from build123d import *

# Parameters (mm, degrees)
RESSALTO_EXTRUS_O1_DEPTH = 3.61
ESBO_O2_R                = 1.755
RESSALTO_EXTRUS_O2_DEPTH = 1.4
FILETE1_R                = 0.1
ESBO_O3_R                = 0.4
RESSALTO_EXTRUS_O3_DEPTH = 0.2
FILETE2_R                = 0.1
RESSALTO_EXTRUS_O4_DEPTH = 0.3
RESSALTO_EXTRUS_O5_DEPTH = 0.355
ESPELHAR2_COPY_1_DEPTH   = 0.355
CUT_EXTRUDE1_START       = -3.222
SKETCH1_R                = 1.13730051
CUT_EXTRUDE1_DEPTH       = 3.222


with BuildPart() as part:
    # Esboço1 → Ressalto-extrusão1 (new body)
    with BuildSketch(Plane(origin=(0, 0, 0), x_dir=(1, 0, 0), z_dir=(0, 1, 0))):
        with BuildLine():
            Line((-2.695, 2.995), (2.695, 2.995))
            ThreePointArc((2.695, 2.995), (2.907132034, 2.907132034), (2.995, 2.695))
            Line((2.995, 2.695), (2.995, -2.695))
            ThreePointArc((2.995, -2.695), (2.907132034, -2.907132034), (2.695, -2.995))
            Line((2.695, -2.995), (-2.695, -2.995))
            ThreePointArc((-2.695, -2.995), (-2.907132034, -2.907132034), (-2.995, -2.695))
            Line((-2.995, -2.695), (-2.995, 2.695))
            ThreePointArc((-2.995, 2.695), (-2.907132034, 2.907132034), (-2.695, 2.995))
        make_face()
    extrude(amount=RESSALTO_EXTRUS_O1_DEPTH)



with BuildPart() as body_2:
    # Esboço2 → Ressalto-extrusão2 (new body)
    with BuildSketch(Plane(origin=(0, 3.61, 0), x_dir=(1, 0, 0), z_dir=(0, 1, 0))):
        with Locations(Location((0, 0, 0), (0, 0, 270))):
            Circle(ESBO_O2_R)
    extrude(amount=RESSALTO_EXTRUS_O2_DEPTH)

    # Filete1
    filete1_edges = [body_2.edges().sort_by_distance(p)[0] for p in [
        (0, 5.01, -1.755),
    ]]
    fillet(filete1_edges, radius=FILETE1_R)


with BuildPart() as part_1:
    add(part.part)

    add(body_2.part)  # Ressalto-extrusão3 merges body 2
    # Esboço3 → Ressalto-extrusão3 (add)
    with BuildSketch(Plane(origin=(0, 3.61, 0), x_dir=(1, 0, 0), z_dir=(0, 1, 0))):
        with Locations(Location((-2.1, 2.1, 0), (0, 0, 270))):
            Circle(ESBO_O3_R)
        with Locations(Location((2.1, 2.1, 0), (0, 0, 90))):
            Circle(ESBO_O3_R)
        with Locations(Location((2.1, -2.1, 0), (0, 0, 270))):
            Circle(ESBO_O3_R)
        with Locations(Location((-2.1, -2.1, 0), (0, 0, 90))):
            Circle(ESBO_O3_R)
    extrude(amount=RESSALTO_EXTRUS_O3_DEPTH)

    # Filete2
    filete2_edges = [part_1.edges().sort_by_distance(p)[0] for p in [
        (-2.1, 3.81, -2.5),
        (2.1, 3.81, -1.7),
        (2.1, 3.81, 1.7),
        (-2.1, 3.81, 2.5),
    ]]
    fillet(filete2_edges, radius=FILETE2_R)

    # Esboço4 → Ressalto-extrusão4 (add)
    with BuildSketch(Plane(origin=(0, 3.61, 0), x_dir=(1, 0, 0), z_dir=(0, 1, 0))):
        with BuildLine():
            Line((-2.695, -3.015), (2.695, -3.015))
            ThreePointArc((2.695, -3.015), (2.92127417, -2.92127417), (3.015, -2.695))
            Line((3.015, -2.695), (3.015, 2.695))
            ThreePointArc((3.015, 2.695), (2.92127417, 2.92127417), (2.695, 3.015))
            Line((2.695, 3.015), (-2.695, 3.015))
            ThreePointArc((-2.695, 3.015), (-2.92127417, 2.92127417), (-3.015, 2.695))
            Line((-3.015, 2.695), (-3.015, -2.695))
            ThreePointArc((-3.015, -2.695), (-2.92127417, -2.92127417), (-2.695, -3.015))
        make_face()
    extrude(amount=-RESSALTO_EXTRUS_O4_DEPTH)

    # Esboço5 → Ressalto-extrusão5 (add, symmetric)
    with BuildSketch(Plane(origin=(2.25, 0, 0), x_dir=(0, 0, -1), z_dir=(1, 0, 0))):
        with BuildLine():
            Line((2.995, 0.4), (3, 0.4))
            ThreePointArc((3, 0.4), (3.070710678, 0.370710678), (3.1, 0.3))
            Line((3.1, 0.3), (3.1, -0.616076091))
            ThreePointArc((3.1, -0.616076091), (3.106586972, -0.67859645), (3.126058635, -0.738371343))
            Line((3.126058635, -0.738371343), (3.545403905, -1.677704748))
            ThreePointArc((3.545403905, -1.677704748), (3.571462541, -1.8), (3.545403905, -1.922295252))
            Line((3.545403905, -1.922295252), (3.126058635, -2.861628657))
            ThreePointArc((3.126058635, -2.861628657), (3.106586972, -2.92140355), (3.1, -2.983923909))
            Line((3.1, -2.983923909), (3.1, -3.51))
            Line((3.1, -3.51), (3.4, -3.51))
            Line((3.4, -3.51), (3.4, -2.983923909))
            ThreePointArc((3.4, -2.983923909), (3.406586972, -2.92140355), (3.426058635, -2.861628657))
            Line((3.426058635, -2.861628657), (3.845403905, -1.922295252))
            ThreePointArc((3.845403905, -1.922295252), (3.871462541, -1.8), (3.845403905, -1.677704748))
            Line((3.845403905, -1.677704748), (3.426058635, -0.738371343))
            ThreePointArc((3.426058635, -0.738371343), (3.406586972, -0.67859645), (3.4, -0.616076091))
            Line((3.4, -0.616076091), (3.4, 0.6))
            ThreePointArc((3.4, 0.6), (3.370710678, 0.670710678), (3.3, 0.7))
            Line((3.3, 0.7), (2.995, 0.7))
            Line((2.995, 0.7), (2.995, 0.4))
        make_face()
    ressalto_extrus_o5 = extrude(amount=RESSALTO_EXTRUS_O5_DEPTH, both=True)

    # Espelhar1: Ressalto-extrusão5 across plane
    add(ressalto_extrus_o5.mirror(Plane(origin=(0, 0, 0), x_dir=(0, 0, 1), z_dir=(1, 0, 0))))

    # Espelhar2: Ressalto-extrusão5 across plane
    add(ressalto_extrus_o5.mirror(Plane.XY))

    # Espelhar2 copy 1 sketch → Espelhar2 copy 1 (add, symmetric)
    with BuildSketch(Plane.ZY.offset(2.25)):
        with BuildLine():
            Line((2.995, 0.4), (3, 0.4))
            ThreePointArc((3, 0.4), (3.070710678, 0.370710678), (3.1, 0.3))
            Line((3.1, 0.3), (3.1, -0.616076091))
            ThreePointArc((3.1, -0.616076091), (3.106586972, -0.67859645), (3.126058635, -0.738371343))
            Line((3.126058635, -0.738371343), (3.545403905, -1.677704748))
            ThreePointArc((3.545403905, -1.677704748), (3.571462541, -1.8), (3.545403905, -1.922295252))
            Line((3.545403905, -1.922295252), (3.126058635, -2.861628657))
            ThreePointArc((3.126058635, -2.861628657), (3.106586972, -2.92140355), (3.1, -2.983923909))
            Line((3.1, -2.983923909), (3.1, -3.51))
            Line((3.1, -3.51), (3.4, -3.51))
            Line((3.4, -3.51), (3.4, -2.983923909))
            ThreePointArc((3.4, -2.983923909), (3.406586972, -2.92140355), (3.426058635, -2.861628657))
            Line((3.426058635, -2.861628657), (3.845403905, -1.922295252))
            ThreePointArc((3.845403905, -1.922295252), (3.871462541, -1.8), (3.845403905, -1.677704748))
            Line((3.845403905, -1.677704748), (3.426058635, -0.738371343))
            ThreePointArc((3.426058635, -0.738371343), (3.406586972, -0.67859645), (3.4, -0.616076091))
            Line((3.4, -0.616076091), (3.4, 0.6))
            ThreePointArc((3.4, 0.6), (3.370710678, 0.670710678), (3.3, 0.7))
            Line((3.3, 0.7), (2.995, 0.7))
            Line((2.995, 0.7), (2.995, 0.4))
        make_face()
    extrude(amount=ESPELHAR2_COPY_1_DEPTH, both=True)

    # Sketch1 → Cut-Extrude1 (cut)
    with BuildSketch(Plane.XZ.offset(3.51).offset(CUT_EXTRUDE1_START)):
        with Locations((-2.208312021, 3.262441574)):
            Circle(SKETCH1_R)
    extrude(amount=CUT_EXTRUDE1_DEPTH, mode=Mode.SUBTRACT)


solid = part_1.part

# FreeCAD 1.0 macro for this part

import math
import FreeCAD as App
import Part
import Sketcher
from FreeCAD import Vector
Q = App.Units.Quantity


def edges_at(feature, points):
    """Names of the edges that pass closest to the given points."""
    edges = feature.Shape.Edges
    near = lambda p: min(range(len(edges)), key=lambda i: edges[i].distToShape(Part.Vertex(*p))[0])
    return sorted({f"Edge{near(p) + 1}" for p in points})

doc = App.newDocument("Part")
body = doc.addObject("PartDesign::Body", "Body")

# Sketch on XZ plane
sketch1 = body.newObject("Sketcher::SketchObject", "Sketch")
sketch1.AttachmentSupport = (doc.getObject("XZ_Plane"), [""])
sketch1.MapMode = "FlatFace"
sketch1.addGeometry([
    Part.LineSegment(Vector(2.69, -3, 0), Vector(-2.69, -3, 0)),  # 0
    Part.ArcOfCircle(Part.Circle(Vector(-2.69, -2.69, 0), Vector(0, 0, 1), 0.3), math.radians(-180), math.radians(-90)),  # 1
    Part.LineSegment(Vector(-3, -2.69, 0), Vector(-3, 2.69, 0)),  # 2
    Part.ArcOfCircle(Part.Circle(Vector(-2.69, 2.69, 0), Vector(0, 0, 1), 0.3), math.radians(90), math.radians(180)),  # 3
    Part.LineSegment(Vector(-2.69, 3, 0), Vector(2.69, 3, 0)),  # 4
    Part.ArcOfCircle(Part.Circle(Vector(2.69, 2.69, 0), Vector(0, 0, 1), 0.3), math.radians(0), math.radians(90)),  # 5
    Part.LineSegment(Vector(3, 2.69, 0), Vector(3, -2.69, 0)),  # 6
    Part.ArcOfCircle(Part.Circle(Vector(2.69, -2.69, 0), Vector(0, 0, 1), 0.3), math.radians(-90), math.radians(0)),  # 7
], False)
sketch1.addConstraint([
    Sketcher.Constraint("Tangent", 0, 2, 1, 2),
    Sketcher.Constraint("Tangent", 1, 1, 2, 1),
    Sketcher.Constraint("Tangent", 2, 2, 3, 2),
    Sketcher.Constraint("Tangent", 3, 1, 4, 1),
    Sketcher.Constraint("Tangent", 4, 2, 5, 2),
    Sketcher.Constraint("Tangent", 5, 1, 6, 1),
    Sketcher.Constraint("Tangent", 6, 2, 7, 2),
    Sketcher.Constraint("Tangent", 7, 1, 0, 1),
    Sketcher.Constraint("Horizontal", 0),
    Sketcher.Constraint("Vertical", 2),
    Sketcher.Constraint("Horizontal", 4),
    Sketcher.Constraint("Vertical", 6),
    Sketcher.Constraint("Equal", 1, 3),
    Sketcher.Constraint("Equal", 3, 5),
    Sketcher.Constraint("Equal", 5, 7),
    Sketcher.Constraint("Symmetric", 1, 3, 5, 3, -1, 1),
    Sketcher.Constraint("Equal", 4, 2),
    Sketcher.Constraint("Radius", 1, Q("0.3 mm")),
    Sketcher.Constraint("DistanceX", 0, 2, 0, 1, Q("5.39 mm")),
])
pad1 = body.newObject("PartDesign::Pad", "Pad")
pad1.Profile = sketch1
pad1.Length = 3.61
pad1.Reversed = True
body2 = doc.addObject("PartDesign::Body", "Body001")

# Sketch on XZ plane
sketch2 = body2.newObject("Sketcher::SketchObject", "Sketch001")
sketch2.AttachmentSupport = (doc.getObject("XZ_Plane001"), [""])
sketch2.MapMode = "FlatFace"
sketch2.AttachmentOffset = App.Placement(Vector(0, 0, -3.61), App.Rotation())
sketch2.addGeometry(Part.Circle(Vector(0, 0, 0), Vector(0, 0, 1), 1.8), False)
sketch2.addConstraint([
    Sketcher.Constraint("Coincident", 0, 3, -1, 1),
    Sketcher.Constraint("Diameter", 0, Q("3.51 mm")),
])
pad2 = body2.newObject("PartDesign::Pad", "Pad001")
pad2.Profile = sketch2
pad2.Length = 1.4
pad2.Reversed = True
doc.recompute()

fillet = body2.newObject("PartDesign::Fillet", "Fillet")
fillet.Base = (pad2, edges_at(pad2, [(0, 5.01, -1.755)]))
fillet.Radius = 0.1
doc.recompute()

boolean = body.newObject("PartDesign::Boolean", "Boolean")
boolean.Type = "Fuse"
boolean.addObjects([body2])

# Sketch on XZ plane
sketch3 = body.newObject("Sketcher::SketchObject", "Sketch002")
sketch3.AttachmentSupport = (doc.getObject("XZ_Plane"), [""])
sketch3.MapMode = "FlatFace"
sketch3.AttachmentOffset = App.Placement(Vector(0, 0, -3.61), App.Rotation())
sketch3.addGeometry([
    Part.Circle(Vector(-2.1, -2.1, 0), Vector(0, 0, 1), 0.4),
    Part.Circle(Vector(2.1, -2.1, 0), Vector(0, 0, 1), 0.4),
    Part.Circle(Vector(2.1, 2.1, 0), Vector(0, 0, 1), 0.4),
    Part.Circle(Vector(-2.1, 2.1, 0), Vector(0, 0, 1), 0.4),
], False)
sketch3.addConstraint([
    Sketcher.Constraint("Equal", 0, 1),
    Sketcher.Constraint("Equal", 1, 2),
    Sketcher.Constraint("Equal", 2, 3),
    Sketcher.Constraint("Symmetric", 0, 3, 2, 3, -1, 1),
    Sketcher.Constraint("Symmetric", 1, 3, 3, 3, -1, 1),
    Sketcher.Constraint("Symmetric", 0, 3, 1, 3, -2),
    Sketcher.Constraint("Diameter", 0, Q("0.8 mm")),
    Sketcher.Constraint("DistanceX", 0, 3, -1, 1, Q("2.1 mm")),
    Sketcher.Constraint("DistanceY", 0, 3, -1, 1, Q("2.1 mm")),
])
pad3 = body.newObject("PartDesign::Pad", "Pad002")
pad3.Profile = sketch3
pad3.Length = 0.2
pad3.Reversed = True
doc.recompute()

fillet2 = body.newObject("PartDesign::Fillet", "Fillet001")
fillet2.Base = (pad3, edges_at(pad3, [
    (-2.1, 3.81, -2.5),
    (2.1, 3.81, -1.7),
    (2.1, 3.81, 1.7),
    (-2.1, 3.81, 2.5),
]))
fillet2.Radius = 0.1

# Sketch on XZ plane
sketch4 = body.newObject("Sketcher::SketchObject", "Sketch003")
sketch4.AttachmentSupport = (doc.getObject("XZ_Plane"), [""])
sketch4.MapMode = "FlatFace"
sketch4.AttachmentOffset = App.Placement(Vector(0, 0, -3.61), App.Rotation())
sketch4.addGeometry([
    Part.LineSegment(Vector(-2.69, 3.02, 0), Vector(2.69, 3.02, 0)),  # 0
    Part.ArcOfCircle(Part.Circle(Vector(2.69, 2.69, 0), Vector(0, 0, 1), 0.32), math.radians(0), math.radians(90)),  # 1
    Part.LineSegment(Vector(3.02, 2.69, 0), Vector(3.02, -2.69, 0)),  # 2
    Part.ArcOfCircle(Part.Circle(Vector(2.69, -2.69, 0), Vector(0, 0, 1), 0.32), math.radians(-90), math.radians(0)),  # 3
    Part.LineSegment(Vector(2.69, -3.02, 0), Vector(-2.69, -3.02, 0)),  # 4
    Part.ArcOfCircle(Part.Circle(Vector(-2.69, -2.69, 0), Vector(0, 0, 1), 0.32), math.radians(180), math.radians(270)),  # 5
    Part.LineSegment(Vector(-3.02, -2.69, 0), Vector(-3.02, 2.69, 0)),  # 6
    Part.ArcOfCircle(Part.Circle(Vector(-2.69, 2.69, 0), Vector(0, 0, 1), 0.32), math.radians(90), math.radians(180)),  # 7
], False)
sketch4.addConstraint([
    Sketcher.Constraint("Tangent", 0, 2, 1, 2),
    Sketcher.Constraint("Tangent", 1, 1, 2, 1),
    Sketcher.Constraint("Tangent", 2, 2, 3, 2),
    Sketcher.Constraint("Tangent", 3, 1, 4, 1),
    Sketcher.Constraint("Tangent", 4, 2, 5, 2),
    Sketcher.Constraint("Tangent", 5, 1, 6, 1),
    Sketcher.Constraint("Tangent", 6, 2, 7, 2),
    Sketcher.Constraint("Tangent", 7, 1, 0, 1),
    Sketcher.Constraint("Horizontal", 0),
    Sketcher.Constraint("Vertical", 2),
    Sketcher.Constraint("Horizontal", 4),
    Sketcher.Constraint("Vertical", 6),
    Sketcher.Constraint("Equal", 1, 3),
    Sketcher.Constraint("Equal", 3, 5),
    Sketcher.Constraint("Equal", 5, 7),
    Sketcher.Constraint("Symmetric", 1, 3, 5, 3, -1, 1),
    Sketcher.Constraint("Equal", 4, 2),
    Sketcher.Constraint("Radius", 1, Q("0.32 mm")),
    Sketcher.Constraint("DistanceX", 0, 1, 0, 2, Q("5.39 mm")),
])
pad4 = body.newObject("PartDesign::Pad", "Pad003")
pad4.Profile = sketch4
pad4.Length = 0.3

# Sketch on YZ plane
sketch5 = body.newObject("Sketcher::SketchObject", "Sketch004")
sketch5.AttachmentSupport = (doc.getObject("YZ_Plane"), [""])
sketch5.MapMode = "FlatFace"
sketch5.AttachmentOffset = App.Placement(Vector(0, 0, 2.25), App.Rotation())
sketch5.addGeometry([
    Part.LineSegment(Vector(0.4, -2.995, 0), Vector(0.4, -3, 0)),  # 0
    Part.ArcOfCircle(Part.Circle(Vector(0.3, -3, 0), Vector(0, 0, 1), 0.1), math.radians(-90), math.radians(0)),  # 1
    Part.LineSegment(Vector(0.3, -3.1, 0), Vector(-0.6161, -3.1, 0)),  # 2
    Part.ArcOfCircle(Part.Circle(Vector(-0.6161, -3.4, 0), Vector(0, 0, 1), 0.3), math.radians(90), math.radians(114)),  # 3
    Part.LineSegment(Vector(-0.7384, -3.1261, 0), Vector(-1.6777, -3.5454, 0)),  # 4
    Part.ArcOfCircle(Part.Circle(Vector(-1.8, -3.2715, 0), Vector(0, 0, 1), 0.3), math.radians(-114), math.radians(-66)),  # 5
    Part.LineSegment(Vector(-1.9223, -3.5454, 0), Vector(-2.8616, -3.1261, 0)),  # 6
    Part.ArcOfCircle(Part.Circle(Vector(-2.9839, -3.4, 0), Vector(0, 0, 1), 0.3), math.radians(66), math.radians(90)),  # 7
    Part.LineSegment(Vector(-2.9839, -3.1, 0), Vector(-3.51, -3.1, 0)),  # 8
    Part.LineSegment(Vector(-3.51, -3.1, 0), Vector(-3.51, -3.4, 0)),  # 9
    Part.LineSegment(Vector(-3.51, -3.4, 0), Vector(-2.9839, -3.4, 0)),  # 10
    Part.ArcOfCircle(Part.Circle(Vector(-2.9839, -3.7, 0), Vector(0, 0, 1), 0.3), math.radians(66), math.radians(90)),  # 11
    Part.LineSegment(Vector(-2.8616, -3.4261, 0), Vector(-1.9223, -3.8454, 0)),  # 12
    Part.ArcOfCircle(Part.Circle(Vector(-1.8, -3.5715, 0), Vector(0, 0, 1), 0.3), math.radians(-114), math.radians(-66)),  # 13
    Part.LineSegment(Vector(-1.6777, -3.8454, 0), Vector(-0.7384, -3.4261, 0)),  # 14
    Part.ArcOfCircle(Part.Circle(Vector(-0.6161, -3.7, 0), Vector(0, 0, 1), 0.3), math.radians(90), math.radians(114)),  # 15
    Part.LineSegment(Vector(-0.6161, -3.4, 0), Vector(0.6, -3.4, 0)),  # 16
    Part.ArcOfCircle(Part.Circle(Vector(0.6, -3.3, 0), Vector(0, 0, 1), 0.1), math.radians(-90), math.radians(0)),  # 17
    Part.LineSegment(Vector(0.7, -3.3, 0), Vector(0.7, -2.995, 0)),  # 18
    Part.LineSegment(Vector(0.7, -2.995, 0), Vector(0.4, -2.995, 0)),  # 19
], False)
sketch5.addConstraint([
    Sketcher.Constraint("Tangent", 0, 2, 1, 2),
    Sketcher.Constraint("Tangent", 1, 1, 2, 1),
    Sketcher.Constraint("Tangent", 2, 2, 3, 1),
    Sketcher.Constraint("Tangent", 3, 2, 4, 1),
    Sketcher.Constraint("Tangent", 4, 2, 5, 2),
    Sketcher.Constraint("Tangent", 5, 1, 6, 1),
    Sketcher.Constraint("Tangent", 6, 2, 7, 1),
    Sketcher.Constraint("Tangent", 7, 2, 8, 1),
    Sketcher.Constraint("Coincident", 8, 2, 9, 1),
    Sketcher.Constraint("Coincident", 9, 2, 10, 1),
    Sketcher.Constraint("Tangent", 10, 2, 11, 2),
    Sketcher.Constraint("Tangent", 11, 1, 12, 1),
    Sketcher.Constraint("Tangent", 12, 2, 13, 1),
    Sketcher.Constraint("Tangent", 13, 2, 14, 1),
    Sketcher.Constraint("Tangent", 14, 2, 15, 2),
    Sketcher.Constraint("Tangent", 15, 1, 16, 1),
    Sketcher.Constraint("Tangent", 16, 2, 17, 1),
    Sketcher.Constraint("Tangent", 17, 2, 18, 1),
    Sketcher.Constraint("Coincident", 18, 2, 19, 1),
    Sketcher.Constraint("Coincident", 19, 2, 0, 1),
    Sketcher.Constraint("Vertical", 0),
    Sketcher.Constraint("Horizontal", 2),
    Sketcher.Constraint("Horizontal", 8),
    Sketcher.Constraint("Vertical", 9),
    Sketcher.Constraint("Horizontal", 10),
    Sketcher.Constraint("Horizontal", 16),
    Sketcher.Constraint("Vertical", 18),
    Sketcher.Constraint("Horizontal", 19),
    Sketcher.Constraint("Coincident", 10, 2, 7, 3),
    Sketcher.Constraint("Coincident", 15, 1, 3, 3),
    Sketcher.Constraint("Equal", 3, 5),
    Sketcher.Constraint("Equal", 5, 7),
    Sketcher.Constraint("Equal", 7, 11),
    Sketcher.Constraint("Equal", 11, 13),
    Sketcher.Constraint("Equal", 13, 15),
    Sketcher.Constraint("Equal", 1, 17),
    Sketcher.Constraint("Parallel", 6, 12),
    Sketcher.Constraint("Parallel", 4, 14),
    Sketcher.Constraint("Horizontal", 3, 3, 7, 3),
    Sketcher.Constraint("Horizontal", 4, 2, 5, 1),
    Sketcher.Constraint("Equal", 19, 9),
    Sketcher.Constraint("Radius", 1, Q("0.1 mm")),
    Sketcher.Constraint("Radius", 3, Q("0.3 mm")),
    Sketcher.Constraint("DistanceY", 1, 3, -1, 1, Q("3 mm")),
    Sketcher.Constraint("DistanceX", -1, 1, 1, 3, Q("0.3 mm")),
    Sketcher.Constraint("DistanceX", 5, 3, -1, 1, Q("1.8 mm")),
    Sketcher.Constraint("DistanceY", 0, 2, 0, 1, Q("0.005 mm")),
    Sketcher.Constraint("DistanceX", 8, 2, -1, 1, Q("3.51 mm")),
    Sketcher.Constraint("DistanceX", 2, 2, 2, 1, Q("0.916076 mm")),
    Sketcher.Constraint("DistanceX", 3, 2, -1, 1, Q("0.738371 mm")),
])
pad5 = body.newObject("PartDesign::Pad", "Pad004")
pad5.Profile = sketch5
pad5.Length = 0.71
pad5.Midplane = True
doc.recompute()

mirrored = body.newObject("PartDesign::Mirrored", "Mirrored")
mirrored.Originals = [pad5]
mirrored.MirrorPlane = (doc.getObject("YZ_Plane"), [""])
body.Tip = mirrored
doc.recompute()

mirrored2 = body.newObject("PartDesign::Mirrored", "Mirrored001")
mirrored2.Originals = [pad5]
mirrored2.MirrorPlane = (doc.getObject("XY_Plane"), [""])
body.Tip = mirrored2

# Sketch on YZ plane
sketch6 = body.newObject("Sketcher::SketchObject", "Sketch005")
sketch6.AttachmentSupport = (doc.getObject("YZ_Plane"), [""])
sketch6.MapMode = "FlatFace"
sketch6.AttachmentOffset = App.Placement(Vector(0, 0, -2.25), App.Rotation())
sketch6.addGeometry([
    Part.LineSegment(Vector(0.4, 2.995, 0), Vector(0.4, 3, 0)),  # 0
    Part.ArcOfCircle(Part.Circle(Vector(0.3, 3, 0), Vector(0, 0, 1), 0.1), math.radians(0), math.radians(90)),  # 1
    Part.LineSegment(Vector(0.3, 3.1, 0), Vector(-0.6161, 3.1, 0)),  # 2
    Part.ArcOfCircle(Part.Circle(Vector(-0.6161, 3.4, 0), Vector(0, 0, 1), 0.3), math.radians(-114), math.radians(-90)),  # 3
    Part.LineSegment(Vector(-0.7384, 3.1261, 0), Vector(-1.6777, 3.5454, 0)),  # 4
    Part.ArcOfCircle(Part.Circle(Vector(-1.8, 3.2715, 0), Vector(0, 0, 1), 0.3), math.radians(66), math.radians(114)),  # 5
    Part.LineSegment(Vector(-1.9223, 3.5454, 0), Vector(-2.8616, 3.1261, 0)),  # 6
    Part.ArcOfCircle(Part.Circle(Vector(-2.9839, 3.4, 0), Vector(0, 0, 1), 0.3), math.radians(-90), math.radians(-66)),  # 7
    Part.LineSegment(Vector(-2.9839, 3.1, 0), Vector(-3.51, 3.1, 0)),  # 8
    Part.LineSegment(Vector(-3.51, 3.1, 0), Vector(-3.51, 3.4, 0)),  # 9
    Part.LineSegment(Vector(-3.51, 3.4, 0), Vector(-2.9839, 3.4, 0)),  # 10
    Part.ArcOfCircle(Part.Circle(Vector(-2.9839, 3.7, 0), Vector(0, 0, 1), 0.3), math.radians(-90), math.radians(-66)),  # 11
    Part.LineSegment(Vector(-2.8616, 3.4261, 0), Vector(-1.9223, 3.8454, 0)),  # 12
    Part.ArcOfCircle(Part.Circle(Vector(-1.8, 3.5715, 0), Vector(0, 0, 1), 0.3), math.radians(66), math.radians(114)),  # 13
    Part.LineSegment(Vector(-1.6777, 3.8454, 0), Vector(-0.7384, 3.4261, 0)),  # 14
    Part.ArcOfCircle(Part.Circle(Vector(-0.6161, 3.7, 0), Vector(0, 0, 1), 0.3), math.radians(-114), math.radians(-90)),  # 15
    Part.LineSegment(Vector(-0.6161, 3.4, 0), Vector(0.6, 3.4, 0)),  # 16
    Part.ArcOfCircle(Part.Circle(Vector(0.6, 3.3, 0), Vector(0, 0, 1), 0.1), math.radians(0), math.radians(90)),  # 17
    Part.LineSegment(Vector(0.7, 3.3, 0), Vector(0.7, 2.995, 0)),  # 18
    Part.LineSegment(Vector(0.7, 2.995, 0), Vector(0.4, 2.995, 0)),  # 19
], False)
sketch6.addConstraint([
    Sketcher.Constraint("Tangent", 0, 2, 1, 1),
    Sketcher.Constraint("Tangent", 1, 2, 2, 1),
    Sketcher.Constraint("Tangent", 2, 2, 3, 2),
    Sketcher.Constraint("Tangent", 3, 1, 4, 1),
    Sketcher.Constraint("Tangent", 4, 2, 5, 1),
    Sketcher.Constraint("Tangent", 5, 2, 6, 1),
    Sketcher.Constraint("Tangent", 6, 2, 7, 2),
    Sketcher.Constraint("Tangent", 7, 1, 8, 1),
    Sketcher.Constraint("Coincident", 8, 2, 9, 1),
    Sketcher.Constraint("Coincident", 9, 2, 10, 1),
    Sketcher.Constraint("Tangent", 10, 2, 11, 1),
    Sketcher.Constraint("Tangent", 11, 2, 12, 1),
    Sketcher.Constraint("Tangent", 12, 2, 13, 2),
    Sketcher.Constraint("Tangent", 13, 1, 14, 1),
    Sketcher.Constraint("Tangent", 14, 2, 15, 1),
    Sketcher.Constraint("Tangent", 15, 2, 16, 1),
    Sketcher.Constraint("Tangent", 16, 2, 17, 2),
    Sketcher.Constraint("Tangent", 17, 1, 18, 1),
    Sketcher.Constraint("Coincident", 18, 2, 19, 1),
    Sketcher.Constraint("Coincident", 19, 2, 0, 1),
    Sketcher.Constraint("Vertical", 0),
    Sketcher.Constraint("Horizontal", 2),
    Sketcher.Constraint("Horizontal", 8),
    Sketcher.Constraint("Vertical", 9),
    Sketcher.Constraint("Horizontal", 10),
    Sketcher.Constraint("Horizontal", 16),
    Sketcher.Constraint("Vertical", 18),
    Sketcher.Constraint("Horizontal", 19),
    Sketcher.Constraint("Coincident", 10, 2, 7, 3),
    Sketcher.Constraint("Coincident", 15, 2, 3, 3),
    Sketcher.Constraint("Equal", 3, 5),
    Sketcher.Constraint("Equal", 5, 7),
    Sketcher.Constraint("Equal", 7, 11),
    Sketcher.Constraint("Equal", 11, 13),
    Sketcher.Constraint("Equal", 13, 15),
    Sketcher.Constraint("Equal", 1, 17),
    Sketcher.Constraint("Parallel", 6, 12),
    Sketcher.Constraint("Parallel", 4, 14),
    Sketcher.Constraint("Horizontal", 3, 3, 7, 3),
    Sketcher.Constraint("Horizontal", 4, 2, 5, 2),
    Sketcher.Constraint("Equal", 19, 9),
    Sketcher.Constraint("Radius", 1, Q("0.1 mm")),
    Sketcher.Constraint("Radius", 3, Q("0.3 mm")),
    Sketcher.Constraint("DistanceY", -1, 1, 1, 3, Q("3 mm")),
    Sketcher.Constraint("DistanceX", -1, 1, 1, 3, Q("0.3 mm")),
    Sketcher.Constraint("DistanceX", 5, 3, -1, 1, Q("1.8 mm")),
    Sketcher.Constraint("DistanceY", 0, 1, 0, 2, Q("0.005 mm")),
    Sketcher.Constraint("DistanceX", 8, 2, -1, 1, Q("3.51 mm")),
    Sketcher.Constraint("DistanceX", 2, 2, 2, 1, Q("0.916076 mm")),
    Sketcher.Constraint("DistanceX", 3, 1, -1, 1, Q("0.738371 mm")),
])
pad6 = body.newObject("PartDesign::Pad", "Pad005")
pad6.Profile = sketch6
pad6.Length = 0.71
pad6.Midplane = True

# Sketch on XZ plane
sketch7 = body.newObject("Sketcher::SketchObject", "Sketch006")
sketch7.AttachmentSupport = (doc.getObject("XZ_Plane"), [""])
sketch7.MapMode = "FlatFace"
sketch7.AttachmentOffset = App.Placement(Vector(0, 0, 0.288), App.Rotation())
sketch7.addGeometry(Part.Circle(Vector(-2.2, 3.3, 0), Vector(0, 0, 1), 1.1), False)
sketch7.addConstraint([
    Sketcher.Constraint("Diameter", 0, Q("2.274601 mm")),
    Sketcher.Constraint("DistanceY", -1, 1, 0, 3, Q("3.262442 mm")),
    Sketcher.Constraint("DistanceX", 0, 3, -1, 1, Q("2.208312 mm")),
])
pocket1 = body.newObject("PartDesign::Pocket", "Pocket")
pocket1.Profile = sketch7
pocket1.Length = 3.222
pocket1.Reversed = True

doc.recompute()
